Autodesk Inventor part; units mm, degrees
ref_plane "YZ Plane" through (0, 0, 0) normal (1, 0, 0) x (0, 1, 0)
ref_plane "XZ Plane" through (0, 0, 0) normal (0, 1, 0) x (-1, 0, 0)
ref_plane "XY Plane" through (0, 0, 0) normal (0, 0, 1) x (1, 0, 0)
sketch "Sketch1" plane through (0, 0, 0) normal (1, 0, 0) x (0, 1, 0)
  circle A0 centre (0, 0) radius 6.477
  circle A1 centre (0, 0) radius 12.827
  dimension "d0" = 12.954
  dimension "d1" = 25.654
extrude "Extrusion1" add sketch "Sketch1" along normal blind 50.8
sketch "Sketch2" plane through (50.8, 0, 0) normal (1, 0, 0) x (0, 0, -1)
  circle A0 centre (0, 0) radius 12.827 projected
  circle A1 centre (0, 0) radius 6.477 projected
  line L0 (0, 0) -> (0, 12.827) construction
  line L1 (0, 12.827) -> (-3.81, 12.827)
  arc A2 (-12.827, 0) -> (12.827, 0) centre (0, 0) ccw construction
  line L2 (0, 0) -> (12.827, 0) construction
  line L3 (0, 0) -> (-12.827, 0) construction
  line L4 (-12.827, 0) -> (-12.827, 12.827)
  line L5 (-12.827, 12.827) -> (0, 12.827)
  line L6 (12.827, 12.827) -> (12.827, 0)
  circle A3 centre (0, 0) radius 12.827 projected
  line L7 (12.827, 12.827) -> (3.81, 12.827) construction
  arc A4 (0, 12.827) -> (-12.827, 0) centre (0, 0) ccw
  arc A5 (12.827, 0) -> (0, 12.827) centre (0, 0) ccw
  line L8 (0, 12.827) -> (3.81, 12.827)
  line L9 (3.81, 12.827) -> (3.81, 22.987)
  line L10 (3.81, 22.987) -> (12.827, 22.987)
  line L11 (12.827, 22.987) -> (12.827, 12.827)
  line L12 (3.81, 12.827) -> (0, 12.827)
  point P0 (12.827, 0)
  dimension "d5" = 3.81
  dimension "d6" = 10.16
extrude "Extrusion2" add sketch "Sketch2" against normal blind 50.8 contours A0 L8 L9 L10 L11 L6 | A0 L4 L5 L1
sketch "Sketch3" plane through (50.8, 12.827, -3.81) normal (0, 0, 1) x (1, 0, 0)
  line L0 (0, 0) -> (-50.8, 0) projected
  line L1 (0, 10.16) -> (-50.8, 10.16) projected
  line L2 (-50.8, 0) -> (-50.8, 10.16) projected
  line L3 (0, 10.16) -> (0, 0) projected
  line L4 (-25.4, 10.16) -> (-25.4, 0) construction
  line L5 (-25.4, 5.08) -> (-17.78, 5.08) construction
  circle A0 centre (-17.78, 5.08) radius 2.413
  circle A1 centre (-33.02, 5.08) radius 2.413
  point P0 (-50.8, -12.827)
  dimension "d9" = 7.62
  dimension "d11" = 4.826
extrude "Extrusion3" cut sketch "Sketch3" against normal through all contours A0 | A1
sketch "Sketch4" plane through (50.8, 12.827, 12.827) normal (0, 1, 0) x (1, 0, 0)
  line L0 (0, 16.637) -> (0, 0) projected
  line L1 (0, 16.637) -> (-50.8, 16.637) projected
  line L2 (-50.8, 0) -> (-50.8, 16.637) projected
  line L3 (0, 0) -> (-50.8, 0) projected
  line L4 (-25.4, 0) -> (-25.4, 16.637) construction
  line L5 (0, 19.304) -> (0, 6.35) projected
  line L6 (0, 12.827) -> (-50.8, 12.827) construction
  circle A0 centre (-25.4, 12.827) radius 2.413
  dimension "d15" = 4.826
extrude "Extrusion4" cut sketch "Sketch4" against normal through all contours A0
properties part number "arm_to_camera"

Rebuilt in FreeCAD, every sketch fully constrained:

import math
import FreeCAD as App
import Part
import Sketcher
Q = App.Units.Quantity

doc = App.newDocument("Part")
body = doc.addObject("PartDesign::Body", "Body")

sketch1 = doc.addObject("Sketcher::SketchObject", "Sketch")
body.addObject(sketch1)
sketch1.AttachmentSupport = (doc.YZ_Plane, [""])
sketch1.MapMode = "FlatFace"
sketch1.addGeometry(Part.Circle(App.Vector(0, 0, 0), App.Vector(0, 0, 1), 13), False)
sketch1.addGeometry(Part.Circle(App.Vector(0, 0, 0), App.Vector(0, 0, 1), 6), False)
sketch1.addConstraint(Sketcher.Constraint("Coincident", 0, 3, -1, 1))
sketch1.addConstraint(Sketcher.Constraint("Coincident", 1, 3, -1, 1))
sketch1.addConstraint(Sketcher.Constraint("Diameter", 0, Q("1.01 in")))
sketch1.addConstraint(Sketcher.Constraint("Diameter", 1, Q("0.51 in")))
pad1 = doc.addObject("PartDesign::Pad", "Pad")
body.addObject(pad1)
pad1.Profile = sketch1
pad1.Length = Q("2 in")

sketch2 = doc.addObject("Sketcher::SketchObject", "Sketch001")
body.addObject(sketch2)
sketch2.AttachmentSupport = (doc.YZ_Plane, [""])
sketch2.MapMode = "FlatFace"
sketch2.AttachmentOffset = App.Placement(App.Vector(0, 0, 2 * 25.4), App.Rotation())
sketch2.addGeometry(Part.ArcOfCircle(Part.Circle(App.Vector(0, 0, 0), App.Vector(0, 0, 1), 12.8), math.radians(-90), math.radians(0)), False)
sketch2.addGeometry(Part.LineSegment(App.Vector(0, -12.8, 0), App.Vector(23, -12.8, 0)), False)
sketch2.addGeometry(Part.LineSegment(App.Vector(23, -12.8, 0), App.Vector(23, -3.8, 0)), False)
sketch2.addGeometry(Part.LineSegment(App.Vector(23, -3.8, 0), App.Vector(12.8, -3.8, 0)), False)
sketch2.addGeometry(Part.LineSegment(App.Vector(12.8, -3.8, 0), App.Vector(12.8, 0, 0)), False)
sketch2.addGeometry(Part.ArcOfCircle(Part.Circle(App.Vector(0, 0, 0), App.Vector(0, 0, 1), 12.8), math.radians(0), math.radians(90)), False)
sketch2.addGeometry(Part.LineSegment(App.Vector(12.8, 0, 0), App.Vector(12.8, 12.8, 0)), False)
sketch2.addGeometry(Part.LineSegment(App.Vector(12.8, 12.8, 0), App.Vector(0, 12.8, 0)), False)
sketch2.addConstraint(Sketcher.Constraint("Tangent", 0, 1, 1, 1))
sketch2.addConstraint(Sketcher.Constraint("Coincident", 1, 2, 2, 1))
sketch2.addConstraint(Sketcher.Constraint("Coincident", 2, 2, 3, 1))
sketch2.addConstraint(Sketcher.Constraint("Coincident", 3, 2, 4, 1))
sketch2.addConstraint(Sketcher.Constraint("Tangent", 4, 2, 0, 2))
sketch2.addConstraint(Sketcher.Constraint("Tangent", 5, 1, 6, 1))
sketch2.addConstraint(Sketcher.Constraint("Coincident", 6, 2, 7, 1))
sketch2.addConstraint(Sketcher.Constraint("Tangent", 7, 2, 5, 2))
sketch2.addConstraint(Sketcher.Constraint("Horizontal", 1))
sketch2.addConstraint(Sketcher.Constraint("Vertical", 2))
sketch2.addConstraint(Sketcher.Constraint("Horizontal", 3))
sketch2.addConstraint(Sketcher.Constraint("Vertical", 4))
sketch2.addConstraint(Sketcher.Constraint("Vertical", 6))
sketch2.addConstraint(Sketcher.Constraint("Horizontal", 7))
sketch2.addConstraint(Sketcher.Constraint("Coincident", 0, 3, -1, 1))
sketch2.addConstraint(Sketcher.Constraint("Coincident", 5, 3, -1, 1))
sketch2.addConstraint(Sketcher.Constraint("Equal", 0, 5))
sketch2.addConstraint(Sketcher.Constraint("DistanceX", 3, 2, 3, 1, Q("0.4 in")))
sketch2.addConstraint(Sketcher.Constraint("DistanceY", 4, 1, 4, 2, Q("0.15 in")))
sketch2.addConstraint(Sketcher.Constraint("Radius", 0, Q("0.505 in")))
pad2 = doc.addObject("PartDesign::Pad", "Pad001")
body.addObject(pad2)
pad2.Profile = sketch2
pad2.Length = Q("2 in")
pad2.Reversed = True

sketch3 = doc.addObject("Sketcher::SketchObject", "Sketch002")
body.addObject(sketch3)
sketch3.AttachmentSupport = (doc.XY_Plane, [""])
sketch3.MapMode = "FlatFace"
sketch3.AttachmentOffset = App.Placement(App.Vector(0, 0, -0.15 * 25.4), App.Rotation())
sketch3.addGeometry(Part.Circle(App.Vector(33, 17.9, 0), App.Vector(0, 0, 1), 2.4), False)
sketch3.addGeometry(Part.Circle(App.Vector(17.8, 17.9, 0), App.Vector(0, 0, 1), 2.4), False)
sketch3.addConstraint(Sketcher.Constraint("Equal", 0, 1))
sketch3.addConstraint(Sketcher.Constraint("Horizontal", 0, 3, 1, 3))
sketch3.addConstraint(Sketcher.Constraint("Diameter", 0, Q("0.19 in")))
sketch3.addConstraint(Sketcher.Constraint("DistanceX", -1, 1, 0, 3, Q("1.3 in")))
sketch3.addConstraint(Sketcher.Constraint("DistanceX", -1, 1, 1, 3, Q("0.7 in")))
sketch3.addConstraint(Sketcher.Constraint("DistanceY", -1, 1, 0, 3, Q("0.705 in")))
pocket1 = doc.addObject("PartDesign::Pocket", "Pocket")
body.addObject(pocket1)
pocket1.Profile = sketch3
pocket1.Type = "ThroughAll"

sketch4 = doc.addObject("Sketcher::SketchObject", "Sketch003")
body.addObject(sketch4)
sketch4.AttachmentSupport = (doc.XZ_Plane, [""])
sketch4.MapMode = "FlatFace"
sketch4.AttachmentOffset = App.Placement(App.Vector(0, 0, -0.505 * 25.4), App.Rotation())
sketch4.addGeometry(Part.Circle(App.Vector(25.4, 0, 0), App.Vector(0, 0, 1), 2.4), False)
sketch4.addConstraint(Sketcher.Constraint("PointOnObject", 0, 3, -1))
sketch4.addConstraint(Sketcher.Constraint("Diameter", 0, Q("0.19 in")))
sketch4.addConstraint(Sketcher.Constraint("DistanceX", -1, 1, 0, 3, Q("1 in")))
pocket2 = doc.addObject("PartDesign::Pocket", "Pocket001")
body.addObject(pocket2)
pocket2.Profile = sketch4
pocket2.Type = "ThroughAll"
pocket2.Reversed = True

doc.recompute()
